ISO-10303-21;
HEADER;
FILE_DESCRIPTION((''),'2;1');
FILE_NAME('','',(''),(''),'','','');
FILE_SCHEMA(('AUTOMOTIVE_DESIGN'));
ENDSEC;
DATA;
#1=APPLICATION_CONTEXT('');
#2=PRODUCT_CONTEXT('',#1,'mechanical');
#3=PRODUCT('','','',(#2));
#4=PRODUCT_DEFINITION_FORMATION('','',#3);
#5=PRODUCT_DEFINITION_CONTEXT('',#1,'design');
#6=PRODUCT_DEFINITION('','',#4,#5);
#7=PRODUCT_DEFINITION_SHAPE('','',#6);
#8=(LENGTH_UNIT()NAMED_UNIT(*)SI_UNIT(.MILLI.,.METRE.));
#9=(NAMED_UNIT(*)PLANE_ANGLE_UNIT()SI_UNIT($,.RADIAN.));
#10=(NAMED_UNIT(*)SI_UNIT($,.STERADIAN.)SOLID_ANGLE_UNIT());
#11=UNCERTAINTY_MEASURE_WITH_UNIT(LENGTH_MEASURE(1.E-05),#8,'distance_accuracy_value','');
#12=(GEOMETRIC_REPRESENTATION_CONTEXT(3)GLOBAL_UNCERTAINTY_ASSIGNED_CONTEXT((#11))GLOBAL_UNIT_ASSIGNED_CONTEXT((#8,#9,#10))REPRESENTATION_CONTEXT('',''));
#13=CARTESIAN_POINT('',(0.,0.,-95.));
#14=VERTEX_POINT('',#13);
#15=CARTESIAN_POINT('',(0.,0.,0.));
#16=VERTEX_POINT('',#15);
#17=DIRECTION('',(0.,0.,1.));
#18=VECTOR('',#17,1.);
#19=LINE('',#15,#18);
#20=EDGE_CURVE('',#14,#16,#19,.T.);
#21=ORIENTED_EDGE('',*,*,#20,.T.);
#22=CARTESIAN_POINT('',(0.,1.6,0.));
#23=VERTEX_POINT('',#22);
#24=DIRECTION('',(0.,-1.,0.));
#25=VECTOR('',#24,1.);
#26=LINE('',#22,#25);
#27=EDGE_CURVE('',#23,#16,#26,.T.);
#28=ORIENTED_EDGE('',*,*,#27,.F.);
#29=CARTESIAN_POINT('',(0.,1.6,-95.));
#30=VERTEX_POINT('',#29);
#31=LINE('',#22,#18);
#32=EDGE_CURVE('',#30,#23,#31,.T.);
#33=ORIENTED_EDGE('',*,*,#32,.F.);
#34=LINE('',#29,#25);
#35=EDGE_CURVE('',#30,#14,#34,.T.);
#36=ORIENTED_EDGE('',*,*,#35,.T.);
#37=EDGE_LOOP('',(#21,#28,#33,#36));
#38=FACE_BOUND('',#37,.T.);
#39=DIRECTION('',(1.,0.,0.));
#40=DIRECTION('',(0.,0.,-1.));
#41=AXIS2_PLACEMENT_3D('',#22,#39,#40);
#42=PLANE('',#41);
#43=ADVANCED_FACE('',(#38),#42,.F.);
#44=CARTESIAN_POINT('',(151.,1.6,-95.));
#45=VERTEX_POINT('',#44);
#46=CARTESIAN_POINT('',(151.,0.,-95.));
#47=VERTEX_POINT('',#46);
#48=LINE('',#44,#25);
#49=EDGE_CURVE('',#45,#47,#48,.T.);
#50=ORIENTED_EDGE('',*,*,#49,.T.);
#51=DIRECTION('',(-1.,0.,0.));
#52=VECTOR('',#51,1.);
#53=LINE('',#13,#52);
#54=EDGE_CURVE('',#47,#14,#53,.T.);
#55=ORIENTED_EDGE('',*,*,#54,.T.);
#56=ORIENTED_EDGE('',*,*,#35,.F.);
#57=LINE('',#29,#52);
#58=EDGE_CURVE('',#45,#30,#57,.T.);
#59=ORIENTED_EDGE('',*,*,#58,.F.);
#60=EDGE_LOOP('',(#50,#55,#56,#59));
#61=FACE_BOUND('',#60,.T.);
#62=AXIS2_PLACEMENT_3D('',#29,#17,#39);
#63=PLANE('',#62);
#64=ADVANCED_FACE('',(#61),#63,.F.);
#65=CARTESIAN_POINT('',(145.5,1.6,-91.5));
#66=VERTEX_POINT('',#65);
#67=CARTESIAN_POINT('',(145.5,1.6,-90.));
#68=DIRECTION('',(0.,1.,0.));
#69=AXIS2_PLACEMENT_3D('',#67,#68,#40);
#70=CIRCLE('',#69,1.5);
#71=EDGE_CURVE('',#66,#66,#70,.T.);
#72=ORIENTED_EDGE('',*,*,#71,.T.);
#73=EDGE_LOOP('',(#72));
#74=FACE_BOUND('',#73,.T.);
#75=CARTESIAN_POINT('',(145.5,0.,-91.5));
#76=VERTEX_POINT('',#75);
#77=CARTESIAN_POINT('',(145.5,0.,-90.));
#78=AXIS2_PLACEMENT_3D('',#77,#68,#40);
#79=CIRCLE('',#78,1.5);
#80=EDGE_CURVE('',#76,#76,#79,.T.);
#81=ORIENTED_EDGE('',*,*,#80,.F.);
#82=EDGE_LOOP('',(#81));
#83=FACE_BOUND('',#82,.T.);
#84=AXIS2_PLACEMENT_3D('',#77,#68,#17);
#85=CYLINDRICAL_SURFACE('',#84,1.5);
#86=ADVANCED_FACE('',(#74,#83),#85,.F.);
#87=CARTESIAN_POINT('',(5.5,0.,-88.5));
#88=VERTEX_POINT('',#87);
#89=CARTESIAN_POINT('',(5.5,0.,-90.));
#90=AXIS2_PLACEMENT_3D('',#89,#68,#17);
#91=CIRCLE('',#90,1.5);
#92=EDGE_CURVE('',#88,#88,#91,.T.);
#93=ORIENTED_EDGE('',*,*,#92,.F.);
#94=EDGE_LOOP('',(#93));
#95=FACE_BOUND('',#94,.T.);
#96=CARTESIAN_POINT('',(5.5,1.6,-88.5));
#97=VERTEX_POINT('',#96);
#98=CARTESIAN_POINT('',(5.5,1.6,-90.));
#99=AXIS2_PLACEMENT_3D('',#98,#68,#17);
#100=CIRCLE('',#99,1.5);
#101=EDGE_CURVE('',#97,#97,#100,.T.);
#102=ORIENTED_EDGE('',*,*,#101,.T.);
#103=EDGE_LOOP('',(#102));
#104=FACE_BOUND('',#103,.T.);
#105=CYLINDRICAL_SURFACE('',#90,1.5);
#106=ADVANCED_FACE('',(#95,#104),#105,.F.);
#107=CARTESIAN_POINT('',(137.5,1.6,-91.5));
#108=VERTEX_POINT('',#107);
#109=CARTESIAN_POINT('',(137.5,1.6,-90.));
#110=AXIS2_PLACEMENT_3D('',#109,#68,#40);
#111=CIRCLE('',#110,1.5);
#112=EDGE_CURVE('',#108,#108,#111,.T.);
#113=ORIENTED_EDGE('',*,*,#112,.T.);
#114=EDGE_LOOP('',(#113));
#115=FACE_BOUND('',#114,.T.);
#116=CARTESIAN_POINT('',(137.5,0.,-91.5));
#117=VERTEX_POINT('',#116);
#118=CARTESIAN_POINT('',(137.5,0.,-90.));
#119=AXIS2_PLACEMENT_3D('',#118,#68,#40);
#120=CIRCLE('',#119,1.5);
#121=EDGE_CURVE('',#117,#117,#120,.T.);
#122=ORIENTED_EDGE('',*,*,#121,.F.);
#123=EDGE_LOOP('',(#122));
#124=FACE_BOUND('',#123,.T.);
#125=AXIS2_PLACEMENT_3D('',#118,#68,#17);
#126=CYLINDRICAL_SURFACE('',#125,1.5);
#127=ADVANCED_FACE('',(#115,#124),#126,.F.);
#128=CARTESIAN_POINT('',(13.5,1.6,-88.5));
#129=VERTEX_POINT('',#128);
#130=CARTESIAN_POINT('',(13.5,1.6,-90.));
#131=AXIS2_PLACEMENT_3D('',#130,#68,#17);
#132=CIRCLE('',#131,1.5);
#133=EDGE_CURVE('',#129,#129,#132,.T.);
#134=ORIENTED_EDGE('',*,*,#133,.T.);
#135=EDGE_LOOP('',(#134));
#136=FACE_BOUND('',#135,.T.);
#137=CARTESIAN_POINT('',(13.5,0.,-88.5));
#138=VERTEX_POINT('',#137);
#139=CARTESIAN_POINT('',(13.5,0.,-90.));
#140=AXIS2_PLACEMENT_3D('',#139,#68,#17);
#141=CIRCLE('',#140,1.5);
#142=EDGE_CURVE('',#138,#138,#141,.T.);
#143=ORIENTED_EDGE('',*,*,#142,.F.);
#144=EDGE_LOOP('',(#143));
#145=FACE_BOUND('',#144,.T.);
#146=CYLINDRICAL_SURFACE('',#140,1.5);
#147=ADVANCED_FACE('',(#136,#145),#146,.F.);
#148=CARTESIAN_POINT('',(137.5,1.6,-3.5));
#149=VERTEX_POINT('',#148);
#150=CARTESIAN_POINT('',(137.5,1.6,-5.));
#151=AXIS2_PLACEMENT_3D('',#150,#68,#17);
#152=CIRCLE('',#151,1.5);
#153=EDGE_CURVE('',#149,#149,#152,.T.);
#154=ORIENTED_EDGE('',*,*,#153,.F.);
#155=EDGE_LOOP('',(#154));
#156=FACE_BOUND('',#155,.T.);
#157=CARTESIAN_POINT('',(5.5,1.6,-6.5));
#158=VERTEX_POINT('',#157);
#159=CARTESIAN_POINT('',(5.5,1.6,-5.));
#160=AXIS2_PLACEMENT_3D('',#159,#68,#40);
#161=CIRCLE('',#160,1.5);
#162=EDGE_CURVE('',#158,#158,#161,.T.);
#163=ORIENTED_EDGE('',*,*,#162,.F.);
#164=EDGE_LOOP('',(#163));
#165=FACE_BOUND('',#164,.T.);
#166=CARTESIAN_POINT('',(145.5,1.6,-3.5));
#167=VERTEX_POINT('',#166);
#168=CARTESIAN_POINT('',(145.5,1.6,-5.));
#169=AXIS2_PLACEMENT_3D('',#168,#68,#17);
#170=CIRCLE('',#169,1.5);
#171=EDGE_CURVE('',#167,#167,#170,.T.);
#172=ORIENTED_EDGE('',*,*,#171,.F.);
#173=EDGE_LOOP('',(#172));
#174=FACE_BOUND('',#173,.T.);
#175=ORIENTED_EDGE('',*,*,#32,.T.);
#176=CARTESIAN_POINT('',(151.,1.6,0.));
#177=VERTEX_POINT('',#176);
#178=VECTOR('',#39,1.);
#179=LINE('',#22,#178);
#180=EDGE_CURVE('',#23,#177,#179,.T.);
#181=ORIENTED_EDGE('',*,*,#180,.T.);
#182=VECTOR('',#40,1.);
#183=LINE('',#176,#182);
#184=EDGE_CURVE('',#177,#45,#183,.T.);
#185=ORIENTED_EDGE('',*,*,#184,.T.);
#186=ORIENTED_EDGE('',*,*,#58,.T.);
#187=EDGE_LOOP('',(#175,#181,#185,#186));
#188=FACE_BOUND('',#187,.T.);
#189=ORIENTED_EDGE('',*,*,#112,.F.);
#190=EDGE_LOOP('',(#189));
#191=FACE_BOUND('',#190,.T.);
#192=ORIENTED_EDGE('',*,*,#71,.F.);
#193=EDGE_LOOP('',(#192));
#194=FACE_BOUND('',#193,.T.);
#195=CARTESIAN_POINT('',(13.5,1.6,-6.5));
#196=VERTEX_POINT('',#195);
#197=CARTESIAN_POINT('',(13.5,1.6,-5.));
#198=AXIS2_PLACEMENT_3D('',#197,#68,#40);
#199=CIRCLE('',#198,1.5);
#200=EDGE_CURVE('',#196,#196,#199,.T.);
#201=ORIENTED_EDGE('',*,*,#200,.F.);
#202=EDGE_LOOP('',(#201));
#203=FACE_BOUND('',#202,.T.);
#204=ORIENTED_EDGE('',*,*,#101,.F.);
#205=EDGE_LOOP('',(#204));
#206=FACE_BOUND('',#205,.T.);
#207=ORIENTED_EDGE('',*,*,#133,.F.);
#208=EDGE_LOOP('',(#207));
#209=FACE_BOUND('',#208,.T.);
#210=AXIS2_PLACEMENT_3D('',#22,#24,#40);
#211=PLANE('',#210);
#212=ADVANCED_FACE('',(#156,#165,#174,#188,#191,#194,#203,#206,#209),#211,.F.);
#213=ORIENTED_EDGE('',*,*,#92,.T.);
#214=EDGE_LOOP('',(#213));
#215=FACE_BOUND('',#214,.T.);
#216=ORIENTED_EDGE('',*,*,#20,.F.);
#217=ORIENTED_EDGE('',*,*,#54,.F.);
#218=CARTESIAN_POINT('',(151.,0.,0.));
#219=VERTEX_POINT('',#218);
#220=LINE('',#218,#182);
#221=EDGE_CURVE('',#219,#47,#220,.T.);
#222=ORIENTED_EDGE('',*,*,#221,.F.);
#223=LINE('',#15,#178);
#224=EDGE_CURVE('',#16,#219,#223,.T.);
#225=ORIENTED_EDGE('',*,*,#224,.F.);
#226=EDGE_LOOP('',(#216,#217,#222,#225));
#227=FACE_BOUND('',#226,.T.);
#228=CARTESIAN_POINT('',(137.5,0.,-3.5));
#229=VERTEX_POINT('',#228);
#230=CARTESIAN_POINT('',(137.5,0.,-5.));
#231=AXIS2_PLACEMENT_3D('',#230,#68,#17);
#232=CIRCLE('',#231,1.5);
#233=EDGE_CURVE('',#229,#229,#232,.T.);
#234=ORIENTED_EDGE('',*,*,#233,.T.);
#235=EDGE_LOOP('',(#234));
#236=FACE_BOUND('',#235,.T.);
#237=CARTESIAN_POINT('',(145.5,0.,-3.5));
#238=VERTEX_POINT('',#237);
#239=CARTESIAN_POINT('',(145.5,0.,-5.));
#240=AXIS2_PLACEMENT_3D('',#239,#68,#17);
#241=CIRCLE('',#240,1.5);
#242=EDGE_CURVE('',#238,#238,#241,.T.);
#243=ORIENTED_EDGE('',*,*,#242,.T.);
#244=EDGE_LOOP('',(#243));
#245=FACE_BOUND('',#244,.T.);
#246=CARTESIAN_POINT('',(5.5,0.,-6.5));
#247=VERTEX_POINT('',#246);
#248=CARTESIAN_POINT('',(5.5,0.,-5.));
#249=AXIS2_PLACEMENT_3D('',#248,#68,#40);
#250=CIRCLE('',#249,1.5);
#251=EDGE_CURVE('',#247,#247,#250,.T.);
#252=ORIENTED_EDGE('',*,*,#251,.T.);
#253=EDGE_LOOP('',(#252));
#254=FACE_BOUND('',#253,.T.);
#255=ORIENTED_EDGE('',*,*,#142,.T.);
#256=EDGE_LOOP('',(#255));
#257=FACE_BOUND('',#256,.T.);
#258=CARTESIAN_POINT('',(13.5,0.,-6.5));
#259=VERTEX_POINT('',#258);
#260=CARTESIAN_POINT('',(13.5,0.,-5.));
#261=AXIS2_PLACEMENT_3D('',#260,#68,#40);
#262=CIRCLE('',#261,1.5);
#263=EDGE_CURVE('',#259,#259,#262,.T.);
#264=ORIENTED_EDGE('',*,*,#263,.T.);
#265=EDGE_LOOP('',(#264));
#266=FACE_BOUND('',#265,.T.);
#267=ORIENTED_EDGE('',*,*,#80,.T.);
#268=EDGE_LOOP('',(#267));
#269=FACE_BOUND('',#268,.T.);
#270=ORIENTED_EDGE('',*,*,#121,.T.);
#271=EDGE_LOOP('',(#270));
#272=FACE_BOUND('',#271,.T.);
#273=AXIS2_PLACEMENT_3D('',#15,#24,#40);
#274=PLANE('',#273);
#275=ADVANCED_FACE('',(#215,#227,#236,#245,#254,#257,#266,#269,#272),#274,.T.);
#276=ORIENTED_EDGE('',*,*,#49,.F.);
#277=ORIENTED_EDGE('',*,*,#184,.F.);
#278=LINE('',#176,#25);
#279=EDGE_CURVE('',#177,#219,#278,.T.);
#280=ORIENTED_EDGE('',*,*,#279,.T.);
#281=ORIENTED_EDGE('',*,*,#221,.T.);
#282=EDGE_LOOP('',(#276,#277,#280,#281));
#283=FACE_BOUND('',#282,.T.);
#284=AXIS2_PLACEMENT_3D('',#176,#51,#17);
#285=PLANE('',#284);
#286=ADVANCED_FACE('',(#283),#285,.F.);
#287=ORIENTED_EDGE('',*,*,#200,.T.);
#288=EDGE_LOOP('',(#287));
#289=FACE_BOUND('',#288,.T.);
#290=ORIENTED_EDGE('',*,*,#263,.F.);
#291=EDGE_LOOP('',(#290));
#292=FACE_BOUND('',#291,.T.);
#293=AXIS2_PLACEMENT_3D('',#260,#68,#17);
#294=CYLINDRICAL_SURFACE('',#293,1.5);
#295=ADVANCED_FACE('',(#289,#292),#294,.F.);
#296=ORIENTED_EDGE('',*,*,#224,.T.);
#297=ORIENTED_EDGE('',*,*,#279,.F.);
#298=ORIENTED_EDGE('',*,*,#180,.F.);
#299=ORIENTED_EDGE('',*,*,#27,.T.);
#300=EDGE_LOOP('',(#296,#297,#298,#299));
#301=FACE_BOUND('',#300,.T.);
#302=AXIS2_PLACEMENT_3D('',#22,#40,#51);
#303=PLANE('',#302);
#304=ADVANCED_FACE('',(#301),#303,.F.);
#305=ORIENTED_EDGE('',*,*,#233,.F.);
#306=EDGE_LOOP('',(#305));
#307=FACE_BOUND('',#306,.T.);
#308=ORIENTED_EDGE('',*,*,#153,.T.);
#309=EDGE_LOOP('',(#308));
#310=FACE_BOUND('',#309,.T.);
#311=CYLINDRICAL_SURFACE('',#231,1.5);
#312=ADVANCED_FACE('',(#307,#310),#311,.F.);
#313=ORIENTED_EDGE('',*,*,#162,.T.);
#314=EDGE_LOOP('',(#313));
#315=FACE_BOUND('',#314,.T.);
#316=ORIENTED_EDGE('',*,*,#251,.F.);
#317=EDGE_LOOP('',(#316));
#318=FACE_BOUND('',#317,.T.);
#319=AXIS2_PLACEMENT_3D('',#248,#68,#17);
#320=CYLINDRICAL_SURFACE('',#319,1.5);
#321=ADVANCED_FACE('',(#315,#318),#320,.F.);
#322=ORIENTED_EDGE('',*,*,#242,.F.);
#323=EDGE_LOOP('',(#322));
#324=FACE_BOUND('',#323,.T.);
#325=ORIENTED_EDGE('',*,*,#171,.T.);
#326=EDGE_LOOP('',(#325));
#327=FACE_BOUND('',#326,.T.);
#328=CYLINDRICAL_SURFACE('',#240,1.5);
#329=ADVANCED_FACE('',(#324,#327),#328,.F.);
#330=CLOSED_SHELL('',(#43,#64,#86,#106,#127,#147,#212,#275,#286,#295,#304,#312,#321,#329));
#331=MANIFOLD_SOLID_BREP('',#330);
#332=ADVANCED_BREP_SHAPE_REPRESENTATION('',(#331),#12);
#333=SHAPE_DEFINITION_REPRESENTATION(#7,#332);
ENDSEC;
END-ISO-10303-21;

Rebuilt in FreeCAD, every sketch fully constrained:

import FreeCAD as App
import Part
import Sketcher

V = App.Vector
Q = App.Units.Quantity

doc = App.newDocument("Part")
body = doc.addObject("PartDesign::Body", "Body")

sketch1 = doc.addObject("Sketcher::SketchObject", "Sketch")
body.addObject(sketch1)
sketch1.AttachmentSupport = (doc.XZ_Plane, [""])
sketch1.MapMode = "FlatFace"
sketch1.addGeometry(Part.LineSegment(V(0, -95, 0), V(0, 0, 0)), False)
sketch1.addGeometry(Part.LineSegment(V(0, 0, 0), V(151, 0, 0)), False)
sketch1.addGeometry(Part.LineSegment(V(151, 0, 0), V(151, -95, 0)), False)
sketch1.addGeometry(Part.LineSegment(V(151, -95, 0), V(0, -95, 0)), False)
sketch1.addConstraint(Sketcher.Constraint("Coincident", 0, 2, 1, 1))
sketch1.addConstraint(Sketcher.Constraint("Coincident", 1, 2, 2, 1))
sketch1.addConstraint(Sketcher.Constraint("Coincident", 2, 2, 3, 1))
sketch1.addConstraint(Sketcher.Constraint("Coincident", 3, 2, 0, 1))
sketch1.addConstraint(Sketcher.Constraint("Vertical", 0))
sketch1.addConstraint(Sketcher.Constraint("Horizontal", 1))
sketch1.addConstraint(Sketcher.Constraint("Vertical", 2))
sketch1.addConstraint(Sketcher.Constraint("Horizontal", 3))
sketch1.addConstraint(Sketcher.Constraint("Coincident", 0, 2, -1, 1))
sketch1.addConstraint(Sketcher.Constraint("DistanceX", 1, 1, 1, 2, Q("151 mm")))
sketch1.addConstraint(Sketcher.Constraint("DistanceY", 0, 1, 0, 2, Q("95 mm")))
pad1 = doc.addObject("PartDesign::Pad", "Pad")
body.addObject(pad1)
pad1.Profile = sketch1
pad1.Length = 1.6
pad1.Reversed = True

sketch2 = doc.addObject("Sketcher::SketchObject", "Sketch001")
body.addObject(sketch2)
sketch2.AttachmentSupport = (doc.XZ_Plane, [""])
sketch2.MapMode = "FlatFace"
sketch2.AttachmentOffset = App.Placement(V(0, 0, -1.6), App.Rotation())
sketch2.addGeometry(Part.Circle(V(5.5, -90, 0), V(0, 0, 1), 1.5), False)
sketch2.addGeometry(Part.Circle(V(145.5, -90, 0), V(0, 0, 1), 1.5), False)
sketch2.addGeometry(Part.Circle(V(145.5, -5, 0), V(0, 0, 1), 1.5), False)
sketch2.addGeometry(Part.Circle(V(5.5, -5, 0), V(0, 0, 1), 1.5), False)
sketch2.addGeometry(Part.Circle(V(13.5, -90, 0), V(0, 0, 1), 1.5), False)
sketch2.addGeometry(Part.Circle(V(13.5, -5, 0), V(0, 0, 1), 1.5), False)
sketch2.addGeometry(Part.Circle(V(137.5, -5, 0), V(0, 0, 1), 1.5), False)
sketch2.addGeometry(Part.Circle(V(137.5, -90, 0), V(0, 0, 1), 1.5), False)
sketch2.addConstraint(Sketcher.Constraint("Equal", 0, 1))
sketch2.addConstraint(Sketcher.Constraint("Equal", 1, 2))
sketch2.addConstraint(Sketcher.Constraint("Equal", 2, 3))
sketch2.addConstraint(Sketcher.Constraint("Equal", 3, 4))
sketch2.addConstraint(Sketcher.Constraint("Equal", 4, 5))
sketch2.addConstraint(Sketcher.Constraint("Equal", 5, 6))
sketch2.addConstraint(Sketcher.Constraint("Equal", 6, 7))
sketch2.addConstraint(Sketcher.Constraint("Horizontal", 0, 3, 1, 3))
sketch2.addConstraint(Sketcher.Constraint("Horizontal", 2, 3, 3, 3))
sketch2.addConstraint(Sketcher.Constraint("Horizontal", 1, 3, 4, 3))
sketch2.addConstraint(Sketcher.Constraint("Horizontal", 3, 3, 5, 3))
sketch2.addConstraint(Sketcher.Constraint("Horizontal", 5, 3, 6, 3))
sketch2.addConstraint(Sketcher.Constraint("Horizontal", 4, 3, 7, 3))
sketch2.addConstraint(Sketcher.Constraint("Vertical", 1, 3, 2, 3))
sketch2.addConstraint(Sketcher.Constraint("Vertical", 0, 3, 3, 3))
sketch2.addConstraint(Sketcher.Constraint("Vertical", 4, 3, 5, 3))
sketch2.addConstraint(Sketcher.Constraint("Vertical", 6, 3, 7, 3))
sketch2.addConstraint(Sketcher.Constraint("Diameter", 0, Q("3 mm")))
sketch2.addConstraint(Sketcher.Constraint("DistanceY", 0, 3, -1, 1, Q("90 mm")))
sketch2.addConstraint(Sketcher.Constraint("DistanceY", 2, 3, -1, 1, Q("5 mm")))
sketch2.addConstraint(Sketcher.Constraint("DistanceX", 0, 3, 1, 3, Q("140 mm")))
sketch2.addConstraint(Sketcher.Constraint("DistanceX", 0, 3, 4, 3, Q("8 mm")))
sketch2.addConstraint(Sketcher.Constraint("DistanceX", 6, 3, 2, 3, Q("8 mm")))
sketch2.addConstraint(Sketcher.Constraint("DistanceX", -1, 1, 0, 3, Q("5.5 mm")))
pocket1 = doc.addObject("PartDesign::Pocket", "Pocket")
body.addObject(pocket1)
pocket1.Profile = sketch2
pocket1.Type = "ThroughAll"
pocket1.Reversed = True

doc.recompute()
